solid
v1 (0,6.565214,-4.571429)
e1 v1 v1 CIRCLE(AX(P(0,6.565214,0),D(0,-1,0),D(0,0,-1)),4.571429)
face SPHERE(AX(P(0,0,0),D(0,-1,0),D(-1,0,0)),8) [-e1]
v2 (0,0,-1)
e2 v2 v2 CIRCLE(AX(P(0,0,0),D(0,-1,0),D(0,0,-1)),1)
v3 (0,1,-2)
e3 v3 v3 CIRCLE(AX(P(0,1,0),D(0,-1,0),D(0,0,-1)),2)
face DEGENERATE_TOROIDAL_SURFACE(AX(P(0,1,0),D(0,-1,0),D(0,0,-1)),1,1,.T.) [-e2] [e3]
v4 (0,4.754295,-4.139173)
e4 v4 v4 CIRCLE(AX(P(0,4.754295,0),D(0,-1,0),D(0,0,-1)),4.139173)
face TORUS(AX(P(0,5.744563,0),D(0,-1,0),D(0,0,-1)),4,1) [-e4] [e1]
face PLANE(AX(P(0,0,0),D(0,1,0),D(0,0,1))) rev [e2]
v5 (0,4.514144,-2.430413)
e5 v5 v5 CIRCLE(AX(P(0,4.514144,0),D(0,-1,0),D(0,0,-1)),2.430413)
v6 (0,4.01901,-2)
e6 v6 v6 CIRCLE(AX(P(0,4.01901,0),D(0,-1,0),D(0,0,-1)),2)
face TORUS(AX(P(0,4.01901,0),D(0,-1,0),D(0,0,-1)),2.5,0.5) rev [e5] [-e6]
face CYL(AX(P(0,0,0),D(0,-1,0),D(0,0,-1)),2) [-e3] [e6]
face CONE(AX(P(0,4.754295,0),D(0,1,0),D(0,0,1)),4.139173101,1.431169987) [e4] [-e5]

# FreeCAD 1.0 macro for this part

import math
import FreeCAD as App
import Part
import Sketcher
Q = App.Units.Quantity

doc = App.newDocument("Part")
body = doc.addObject("PartDesign::Body", "Body")

# Sketch on XY plane
sketch1 = doc.addObject("Sketcher::SketchObject", "Sketch")
body.addObject(sketch1)
sketch1.AttachmentSupport = (doc.XY_Plane, [""])
sketch1.MapMode = "FlatFace"
sketch1.addGeometry(Part.LineSegment(App.Vector(-2, 4, 0), App.Vector(-2, 1, 0)), False)
sketch1.addGeometry(Part.ArcOfCircle(Part.Circle(App.Vector(-1, 1, 0), App.Vector(0, 0, 1), 1), math.radians(-180), math.radians(-90)), False)
sketch1.addGeometry(Part.LineSegment(App.Vector(-1, 0, 0), App.Vector(0, 0, 0)), False)
sketch1.addGeometry(Part.LineSegment(App.Vector(0, 0, 0), App.Vector(0, 8, 0)), False)
sketch1.addGeometry(Part.ArcOfCircle(Part.Circle(App.Vector(0, 0, 0), App.Vector(0, 0, 1), 8), math.radians(90), math.radians(125)), False)
sketch1.addGeometry(Part.ArcOfCircle(Part.Circle(App.Vector(-4, 5.7, 0), App.Vector(0, 0, 1), 1), math.radians(125), math.radians(262)), False)
sketch1.addGeometry(Part.LineSegment(App.Vector(-4.1, 4.8, 0), App.Vector(-2.4, 4.5, 0)), False)
sketch1.addGeometry(Part.ArcOfCircle(Part.Circle(App.Vector(-2.5, 4, 0), App.Vector(0, 0, 1), 0.5), math.radians(0), math.radians(82)), False)
sketch1.addConstraint(Sketcher.Constraint("Tangent", 0, 2, 1, 1))
sketch1.addConstraint(Sketcher.Constraint("Tangent", 1, 2, 2, 1))
sketch1.addConstraint(Sketcher.Constraint("Coincident", 2, 2, 3, 1))
sketch1.addConstraint(Sketcher.Constraint("Coincident", 3, 2, 4, 1))
sketch1.addConstraint(Sketcher.Constraint("Tangent", 4, 2, 5, 1))
sketch1.addConstraint(Sketcher.Constraint("Tangent", 5, 2, 6, 1))
sketch1.addConstraint(Sketcher.Constraint("Tangent", 6, 2, 7, 2))
sketch1.addConstraint(Sketcher.Constraint("Tangent", 7, 1, 0, 1))
sketch1.addConstraint(Sketcher.Constraint("Vertical", 0))
sketch1.addConstraint(Sketcher.Constraint("Horizontal", 2))
sketch1.addConstraint(Sketcher.Constraint("Vertical", 3))
sketch1.addConstraint(Sketcher.Constraint("Coincident", 4, 3, -1, 1))
sketch1.addConstraint(Sketcher.Constraint("Coincident", 2, 2, -1, 1))
sketch1.addConstraint(Sketcher.Constraint("Equal", 1, 5))
sketch1.addConstraint(Sketcher.Constraint("Radius", 1, Q("1 mm")))
sketch1.addConstraint(Sketcher.Constraint("Radius", 4, Q("8 mm")))
sketch1.addConstraint(Sketcher.Constraint("Radius", 7, Q("0.5 mm")))
sketch1.addConstraint(Sketcher.Constraint("DistanceX", 2, 1, 2, 2, Q("1 mm")))
sketch1.addConstraint(Sketcher.Constraint("Angle", 6, Q("-8 deg")))
sketch1.addConstraint(Sketcher.Constraint("DistanceX", 5, 3, -1, 1, Q("4 mm")))
revolution = doc.addObject("PartDesign::Revolution", "Revolution")
body.addObject(revolution)
revolution.Profile = sketch1
revolution.ReferenceAxis = (sketch1, ["V_Axis"])
revolution.Angle = 360

doc.recompute()
